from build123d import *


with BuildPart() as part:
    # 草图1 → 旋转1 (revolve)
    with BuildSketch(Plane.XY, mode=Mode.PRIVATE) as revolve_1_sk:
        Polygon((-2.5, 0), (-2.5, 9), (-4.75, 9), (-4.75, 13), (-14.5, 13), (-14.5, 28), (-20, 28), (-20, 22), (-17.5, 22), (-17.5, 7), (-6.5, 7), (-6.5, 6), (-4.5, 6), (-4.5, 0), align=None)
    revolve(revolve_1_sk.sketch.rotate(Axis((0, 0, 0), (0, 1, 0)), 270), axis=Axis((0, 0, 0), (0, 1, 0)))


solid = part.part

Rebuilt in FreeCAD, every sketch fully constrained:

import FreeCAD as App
import Part
import Sketcher

V = App.Vector
Q = App.Units.Quantity

doc = App.newDocument("Part")
body = doc.addObject("PartDesign::Body", "Body")

# Sketch on XY plane
sketch1 = body.newObject("Sketcher::SketchObject", "Sketch")
sketch1.AttachmentSupport = (doc.getObject("XY_Plane"), [""])
sketch1.MapMode = "FlatFace"
sketch1.addGeometry(Part.LineSegment(V(-2.5, 0, 0), V(-2.5, 9, 0)), False)
sketch1.addGeometry(Part.LineSegment(V(-2.5, 9, 0), V(-4.8, 9, 0)), False)
sketch1.addGeometry(Part.LineSegment(V(-4.8, 9, 0), V(-4.8, 13, 0)), False)
sketch1.addGeometry(Part.LineSegment(V(-4.8, 13, 0), V(-14.5, 13, 0)), False)
sketch1.addGeometry(Part.LineSegment(V(-14.5, 13, 0), V(-14.5, 28, 0)), False)
sketch1.addGeometry(Part.LineSegment(V(-14.5, 28, 0), V(-20, 28, 0)), False)
sketch1.addGeometry(Part.LineSegment(V(-20, 28, 0), V(-20, 22, 0)), False)
sketch1.addGeometry(Part.LineSegment(V(-20, 22, 0), V(-17.5, 22, 0)), False)
sketch1.addGeometry(Part.LineSegment(V(-17.5, 22, 0), V(-17.5, 7, 0)), False)
sketch1.addGeometry(Part.LineSegment(V(-17.5, 7, 0), V(-6.5, 7, 0)), False)
sketch1.addGeometry(Part.LineSegment(V(-6.5, 7, 0), V(-6.5, 6, 0)), False)
sketch1.addGeometry(Part.LineSegment(V(-6.5, 6, 0), V(-4.5, 6, 0)), False)
sketch1.addGeometry(Part.LineSegment(V(-4.5, 6, 0), V(-4.5, 0, 0)), False)
sketch1.addGeometry(Part.LineSegment(V(-4.5, 0, 0), V(-2.5, 0, 0)), False)
sketch1.addConstraint(Sketcher.Constraint("Coincident", 0, 2, 1, 1))
sketch1.addConstraint(Sketcher.Constraint("Coincident", 1, 2, 2, 1))
sketch1.addConstraint(Sketcher.Constraint("Coincident", 2, 2, 3, 1))
sketch1.addConstraint(Sketcher.Constraint("Coincident", 3, 2, 4, 1))
sketch1.addConstraint(Sketcher.Constraint("Coincident", 4, 2, 5, 1))
sketch1.addConstraint(Sketcher.Constraint("Coincident", 5, 2, 6, 1))
sketch1.addConstraint(Sketcher.Constraint("Coincident", 6, 2, 7, 1))
sketch1.addConstraint(Sketcher.Constraint("Coincident", 7, 2, 8, 1))
sketch1.addConstraint(Sketcher.Constraint("Coincident", 8, 2, 9, 1))
sketch1.addConstraint(Sketcher.Constraint("Coincident", 9, 2, 10, 1))
sketch1.addConstraint(Sketcher.Constraint("Coincident", 10, 2, 11, 1))
sketch1.addConstraint(Sketcher.Constraint("Coincident", 11, 2, 12, 1))
sketch1.addConstraint(Sketcher.Constraint("Coincident", 12, 2, 13, 1))
sketch1.addConstraint(Sketcher.Constraint("Coincident", 13, 2, 0, 1))
sketch1.addConstraint(Sketcher.Constraint("Vertical", 0))
sketch1.addConstraint(Sketcher.Constraint("Horizontal", 1))
sketch1.addConstraint(Sketcher.Constraint("Vertical", 2))
sketch1.addConstraint(Sketcher.Constraint("Horizontal", 3))
sketch1.addConstraint(Sketcher.Constraint("Vertical", 4))
sketch1.addConstraint(Sketcher.Constraint("Horizontal", 5))
sketch1.addConstraint(Sketcher.Constraint("Vertical", 6))
sketch1.addConstraint(Sketcher.Constraint("Horizontal", 7))
sketch1.addConstraint(Sketcher.Constraint("Vertical", 8))
sketch1.addConstraint(Sketcher.Constraint("Horizontal", 9))
sketch1.addConstraint(Sketcher.Constraint("Vertical", 10))
sketch1.addConstraint(Sketcher.Constraint("Horizontal", 11))
sketch1.addConstraint(Sketcher.Constraint("Vertical", 12))
sketch1.addConstraint(Sketcher.Constraint("Horizontal", 13))
sketch1.addConstraint(Sketcher.Constraint("PointOnObject", 12, 2, -1))
sketch1.addConstraint(Sketcher.Constraint("Equal", 11, 13))
sketch1.addConstraint(Sketcher.Constraint("Equal", 4, 8))
sketch1.addConstraint(Sketcher.Constraint("Equal", 6, 12))
sketch1.addConstraint(Sketcher.Constraint("DistanceX", 9, 1, 9, 2, Q("11 mm")))
sketch1.addConstraint(Sketcher.Constraint("DistanceX", 11, 1, 11, 2, Q("2 mm")))
sketch1.addConstraint(Sketcher.Constraint("DistanceY", 0, 1, 0, 2, Q("9 mm")))
sketch1.addConstraint(Sketcher.Constraint("DistanceY", 2, 1, 2, 2, Q("4 mm")))
sketch1.addConstraint(Sketcher.Constraint("DistanceY", 4, 1, 4, 2, Q("15 mm")))
sketch1.addConstraint(Sketcher.Constraint("DistanceY", 6, 2, 6, 1, Q("6 mm")))
sketch1.addConstraint(Sketcher.Constraint("DistanceX", 5, 2, 5, 1, Q("5.5 mm")))
sketch1.addConstraint(Sketcher.Constraint("DistanceX", 7, 1, 7, 2, Q("2.5 mm")))
sketch1.addConstraint(Sketcher.Constraint("DistanceX", 5, 2, -1, 1, Q("20 mm")))
sketch1.addConstraint(Sketcher.Constraint("DistanceX", 1, 2, 1, 1, Q("2.25 mm")))
revolution = body.newObject("PartDesign::Revolution", "Revolution")
revolution.Profile = sketch1
revolution.ReferenceAxis = (sketch1, ["V_Axis"])
revolution.Angle = 360

doc.recompute()
